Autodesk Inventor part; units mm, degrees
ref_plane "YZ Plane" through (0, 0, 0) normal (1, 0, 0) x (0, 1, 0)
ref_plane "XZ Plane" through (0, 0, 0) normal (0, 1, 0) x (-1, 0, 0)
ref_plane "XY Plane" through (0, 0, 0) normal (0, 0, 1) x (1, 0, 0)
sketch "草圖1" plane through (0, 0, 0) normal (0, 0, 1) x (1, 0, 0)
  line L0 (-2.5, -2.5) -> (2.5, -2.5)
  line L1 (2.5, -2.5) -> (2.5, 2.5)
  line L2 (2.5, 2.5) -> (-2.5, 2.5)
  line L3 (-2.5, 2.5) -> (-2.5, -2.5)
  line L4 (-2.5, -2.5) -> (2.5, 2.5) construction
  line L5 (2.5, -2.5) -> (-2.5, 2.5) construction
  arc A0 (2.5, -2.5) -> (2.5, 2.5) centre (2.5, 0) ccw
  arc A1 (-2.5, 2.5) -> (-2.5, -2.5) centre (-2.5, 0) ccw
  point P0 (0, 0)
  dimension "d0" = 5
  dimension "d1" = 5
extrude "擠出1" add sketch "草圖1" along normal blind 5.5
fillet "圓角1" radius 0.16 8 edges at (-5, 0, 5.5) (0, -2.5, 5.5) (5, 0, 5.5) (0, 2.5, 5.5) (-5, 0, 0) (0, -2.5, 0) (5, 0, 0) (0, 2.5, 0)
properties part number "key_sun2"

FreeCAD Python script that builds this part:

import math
import FreeCAD as App
import Part
import Sketcher

V = App.Vector


def edges_at(feature, points):
    """Names of the edges that pass closest to the given points."""
    edges = feature.Shape.Edges
    near = lambda p: min(range(len(edges)), key=lambda i: edges[i].distToShape(Part.Vertex(*p))[0])
    return sorted({f"Edge{near(p) + 1}" for p in points})

doc = App.newDocument("Part")
params = doc.addObject("Spreadsheet::Sheet", "Params")
for row, (alias, value) in enumerate([
    ("sketch1_radius", "2.5 mm"),
    ("sketch1_width", "5 mm"),
    ("pad1_length", "5.5 mm"),
    ("fillet_radius", "0.16 mm"),
], start=1):
    params.set(f"A{row}", alias)
    params.set(f"B{row}", "=" + value)
    params.setAlias(f"B{row}", alias)

body = doc.addObject("PartDesign::Body", "Body")

sketch1 = body.newObject("Sketcher::SketchObject", "Sketch")
sketch1.AttachmentSupport = (doc.getObject("XY_Plane"), [""])
sketch1.MapMode = "FlatFace"
sketch1.addGeometry([
    Part.LineSegment(V(2.5, 2.5, 0), V(-2.5, 2.5, 0)),
    Part.ArcOfCircle(Part.Circle(V(-2.5, 0, 0), V(0, 0, 1), 2.5), math.radians(90), math.radians(270)),
    Part.LineSegment(V(-2.5, -2.5, 0), V(2.5, -2.5, 0)),
    Part.ArcOfCircle(Part.Circle(V(2.5, 0, 0), V(0, 0, 1), 2.5), math.radians(-90), math.radians(90)),
], False)
sketch1.addConstraint([
    Sketcher.Constraint("Tangent", 0, 2, 1, 1),
    Sketcher.Constraint("Tangent", 1, 2, 2, 1),
    Sketcher.Constraint("Tangent", 2, 2, 3, 1),
    Sketcher.Constraint("Tangent", 3, 2, 0, 1),
    Sketcher.Constraint("Horizontal", 0),
    Sketcher.Constraint("Horizontal", 2),
    Sketcher.Constraint("Symmetric", 1, 3, 3, 3, -1, 1),
    Sketcher.Constraint("Radius", 1, 2.5),
    Sketcher.Constraint("DistanceX", 0, 2, 0, 1, 5.0),
])
sketch1.setExpression("Constraints[7]", "Params.sketch1_radius")
sketch1.setExpression("Constraints[8]", "Params.sketch1_width")
pad1 = body.newObject("PartDesign::Pad", "Pad")
pad1.Profile = sketch1
pad1.setExpression("Length", "Params.pad1_length")
doc.recompute()

fillet = body.newObject("PartDesign::Fillet", "Fillet")
fillet.Base = (pad1, edges_at(pad1, [
    (-5, 0, 5.5),
    (0, -2.5, 5.5),
    (5, 0, 5.5),
    (0, 2.5, 5.5),
    (-5, 0, 0),
    (0, -2.5, 0),
    (5, 0, 0),
    (0, 2.5, 0),
]))
fillet.setExpression("Radius", "Params.fillet_radius")

doc.recompute()
